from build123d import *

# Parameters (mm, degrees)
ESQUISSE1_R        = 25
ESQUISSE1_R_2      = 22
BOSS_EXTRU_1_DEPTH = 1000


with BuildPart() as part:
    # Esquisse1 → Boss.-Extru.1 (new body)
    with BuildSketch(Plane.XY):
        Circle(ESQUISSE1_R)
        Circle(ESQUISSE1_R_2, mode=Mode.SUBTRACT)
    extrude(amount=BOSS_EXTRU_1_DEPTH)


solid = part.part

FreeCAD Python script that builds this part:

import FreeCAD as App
import Part
import Sketcher

V = App.Vector

doc = App.newDocument("Part")
params = doc.addObject("Spreadsheet::Sheet", "Params")
for row, (alias, value) in enumerate([
    ("sketch1_diameter", "50 mm"),
    ("sketch1_diameter2", "44 mm"),
    ("pad1_length", "1000 mm"),
], start=1):
    params.set(f"A{row}", alias)
    params.set(f"B{row}", "=" + value)
    params.setAlias(f"B{row}", alias)

body = doc.addObject("PartDesign::Body", "Body")

# Sketch on XY plane
sketch1 = body.newObject("Sketcher::SketchObject", "Sketch")
sketch1.AttachmentSupport = (doc.getObject("XY_Plane"), [""])
sketch1.MapMode = "FlatFace"
sketch1.addGeometry([
    Part.Circle(V(0, 0, 0), V(0, 0, 1), 25),
    Part.Circle(V(0, 0, 0), V(0, 0, 1), 22),
], False)
sketch1.addConstraint([
    Sketcher.Constraint("Coincident", 0, 3, -1, 1),
    Sketcher.Constraint("Coincident", 1, 3, -1, 1),
    Sketcher.Constraint("Diameter", 0, 50.0),
    Sketcher.Constraint("Diameter", 1, 44.0),
])
sketch1.setExpression("Constraints[2]", "Params.sketch1_diameter")
sketch1.setExpression("Constraints[3]", "Params.sketch1_diameter2")
pad1 = body.newObject("PartDesign::Pad", "Pad")
pad1.Profile = sketch1
pad1.setExpression("Length", "Params.pad1_length")

doc.recompute()
